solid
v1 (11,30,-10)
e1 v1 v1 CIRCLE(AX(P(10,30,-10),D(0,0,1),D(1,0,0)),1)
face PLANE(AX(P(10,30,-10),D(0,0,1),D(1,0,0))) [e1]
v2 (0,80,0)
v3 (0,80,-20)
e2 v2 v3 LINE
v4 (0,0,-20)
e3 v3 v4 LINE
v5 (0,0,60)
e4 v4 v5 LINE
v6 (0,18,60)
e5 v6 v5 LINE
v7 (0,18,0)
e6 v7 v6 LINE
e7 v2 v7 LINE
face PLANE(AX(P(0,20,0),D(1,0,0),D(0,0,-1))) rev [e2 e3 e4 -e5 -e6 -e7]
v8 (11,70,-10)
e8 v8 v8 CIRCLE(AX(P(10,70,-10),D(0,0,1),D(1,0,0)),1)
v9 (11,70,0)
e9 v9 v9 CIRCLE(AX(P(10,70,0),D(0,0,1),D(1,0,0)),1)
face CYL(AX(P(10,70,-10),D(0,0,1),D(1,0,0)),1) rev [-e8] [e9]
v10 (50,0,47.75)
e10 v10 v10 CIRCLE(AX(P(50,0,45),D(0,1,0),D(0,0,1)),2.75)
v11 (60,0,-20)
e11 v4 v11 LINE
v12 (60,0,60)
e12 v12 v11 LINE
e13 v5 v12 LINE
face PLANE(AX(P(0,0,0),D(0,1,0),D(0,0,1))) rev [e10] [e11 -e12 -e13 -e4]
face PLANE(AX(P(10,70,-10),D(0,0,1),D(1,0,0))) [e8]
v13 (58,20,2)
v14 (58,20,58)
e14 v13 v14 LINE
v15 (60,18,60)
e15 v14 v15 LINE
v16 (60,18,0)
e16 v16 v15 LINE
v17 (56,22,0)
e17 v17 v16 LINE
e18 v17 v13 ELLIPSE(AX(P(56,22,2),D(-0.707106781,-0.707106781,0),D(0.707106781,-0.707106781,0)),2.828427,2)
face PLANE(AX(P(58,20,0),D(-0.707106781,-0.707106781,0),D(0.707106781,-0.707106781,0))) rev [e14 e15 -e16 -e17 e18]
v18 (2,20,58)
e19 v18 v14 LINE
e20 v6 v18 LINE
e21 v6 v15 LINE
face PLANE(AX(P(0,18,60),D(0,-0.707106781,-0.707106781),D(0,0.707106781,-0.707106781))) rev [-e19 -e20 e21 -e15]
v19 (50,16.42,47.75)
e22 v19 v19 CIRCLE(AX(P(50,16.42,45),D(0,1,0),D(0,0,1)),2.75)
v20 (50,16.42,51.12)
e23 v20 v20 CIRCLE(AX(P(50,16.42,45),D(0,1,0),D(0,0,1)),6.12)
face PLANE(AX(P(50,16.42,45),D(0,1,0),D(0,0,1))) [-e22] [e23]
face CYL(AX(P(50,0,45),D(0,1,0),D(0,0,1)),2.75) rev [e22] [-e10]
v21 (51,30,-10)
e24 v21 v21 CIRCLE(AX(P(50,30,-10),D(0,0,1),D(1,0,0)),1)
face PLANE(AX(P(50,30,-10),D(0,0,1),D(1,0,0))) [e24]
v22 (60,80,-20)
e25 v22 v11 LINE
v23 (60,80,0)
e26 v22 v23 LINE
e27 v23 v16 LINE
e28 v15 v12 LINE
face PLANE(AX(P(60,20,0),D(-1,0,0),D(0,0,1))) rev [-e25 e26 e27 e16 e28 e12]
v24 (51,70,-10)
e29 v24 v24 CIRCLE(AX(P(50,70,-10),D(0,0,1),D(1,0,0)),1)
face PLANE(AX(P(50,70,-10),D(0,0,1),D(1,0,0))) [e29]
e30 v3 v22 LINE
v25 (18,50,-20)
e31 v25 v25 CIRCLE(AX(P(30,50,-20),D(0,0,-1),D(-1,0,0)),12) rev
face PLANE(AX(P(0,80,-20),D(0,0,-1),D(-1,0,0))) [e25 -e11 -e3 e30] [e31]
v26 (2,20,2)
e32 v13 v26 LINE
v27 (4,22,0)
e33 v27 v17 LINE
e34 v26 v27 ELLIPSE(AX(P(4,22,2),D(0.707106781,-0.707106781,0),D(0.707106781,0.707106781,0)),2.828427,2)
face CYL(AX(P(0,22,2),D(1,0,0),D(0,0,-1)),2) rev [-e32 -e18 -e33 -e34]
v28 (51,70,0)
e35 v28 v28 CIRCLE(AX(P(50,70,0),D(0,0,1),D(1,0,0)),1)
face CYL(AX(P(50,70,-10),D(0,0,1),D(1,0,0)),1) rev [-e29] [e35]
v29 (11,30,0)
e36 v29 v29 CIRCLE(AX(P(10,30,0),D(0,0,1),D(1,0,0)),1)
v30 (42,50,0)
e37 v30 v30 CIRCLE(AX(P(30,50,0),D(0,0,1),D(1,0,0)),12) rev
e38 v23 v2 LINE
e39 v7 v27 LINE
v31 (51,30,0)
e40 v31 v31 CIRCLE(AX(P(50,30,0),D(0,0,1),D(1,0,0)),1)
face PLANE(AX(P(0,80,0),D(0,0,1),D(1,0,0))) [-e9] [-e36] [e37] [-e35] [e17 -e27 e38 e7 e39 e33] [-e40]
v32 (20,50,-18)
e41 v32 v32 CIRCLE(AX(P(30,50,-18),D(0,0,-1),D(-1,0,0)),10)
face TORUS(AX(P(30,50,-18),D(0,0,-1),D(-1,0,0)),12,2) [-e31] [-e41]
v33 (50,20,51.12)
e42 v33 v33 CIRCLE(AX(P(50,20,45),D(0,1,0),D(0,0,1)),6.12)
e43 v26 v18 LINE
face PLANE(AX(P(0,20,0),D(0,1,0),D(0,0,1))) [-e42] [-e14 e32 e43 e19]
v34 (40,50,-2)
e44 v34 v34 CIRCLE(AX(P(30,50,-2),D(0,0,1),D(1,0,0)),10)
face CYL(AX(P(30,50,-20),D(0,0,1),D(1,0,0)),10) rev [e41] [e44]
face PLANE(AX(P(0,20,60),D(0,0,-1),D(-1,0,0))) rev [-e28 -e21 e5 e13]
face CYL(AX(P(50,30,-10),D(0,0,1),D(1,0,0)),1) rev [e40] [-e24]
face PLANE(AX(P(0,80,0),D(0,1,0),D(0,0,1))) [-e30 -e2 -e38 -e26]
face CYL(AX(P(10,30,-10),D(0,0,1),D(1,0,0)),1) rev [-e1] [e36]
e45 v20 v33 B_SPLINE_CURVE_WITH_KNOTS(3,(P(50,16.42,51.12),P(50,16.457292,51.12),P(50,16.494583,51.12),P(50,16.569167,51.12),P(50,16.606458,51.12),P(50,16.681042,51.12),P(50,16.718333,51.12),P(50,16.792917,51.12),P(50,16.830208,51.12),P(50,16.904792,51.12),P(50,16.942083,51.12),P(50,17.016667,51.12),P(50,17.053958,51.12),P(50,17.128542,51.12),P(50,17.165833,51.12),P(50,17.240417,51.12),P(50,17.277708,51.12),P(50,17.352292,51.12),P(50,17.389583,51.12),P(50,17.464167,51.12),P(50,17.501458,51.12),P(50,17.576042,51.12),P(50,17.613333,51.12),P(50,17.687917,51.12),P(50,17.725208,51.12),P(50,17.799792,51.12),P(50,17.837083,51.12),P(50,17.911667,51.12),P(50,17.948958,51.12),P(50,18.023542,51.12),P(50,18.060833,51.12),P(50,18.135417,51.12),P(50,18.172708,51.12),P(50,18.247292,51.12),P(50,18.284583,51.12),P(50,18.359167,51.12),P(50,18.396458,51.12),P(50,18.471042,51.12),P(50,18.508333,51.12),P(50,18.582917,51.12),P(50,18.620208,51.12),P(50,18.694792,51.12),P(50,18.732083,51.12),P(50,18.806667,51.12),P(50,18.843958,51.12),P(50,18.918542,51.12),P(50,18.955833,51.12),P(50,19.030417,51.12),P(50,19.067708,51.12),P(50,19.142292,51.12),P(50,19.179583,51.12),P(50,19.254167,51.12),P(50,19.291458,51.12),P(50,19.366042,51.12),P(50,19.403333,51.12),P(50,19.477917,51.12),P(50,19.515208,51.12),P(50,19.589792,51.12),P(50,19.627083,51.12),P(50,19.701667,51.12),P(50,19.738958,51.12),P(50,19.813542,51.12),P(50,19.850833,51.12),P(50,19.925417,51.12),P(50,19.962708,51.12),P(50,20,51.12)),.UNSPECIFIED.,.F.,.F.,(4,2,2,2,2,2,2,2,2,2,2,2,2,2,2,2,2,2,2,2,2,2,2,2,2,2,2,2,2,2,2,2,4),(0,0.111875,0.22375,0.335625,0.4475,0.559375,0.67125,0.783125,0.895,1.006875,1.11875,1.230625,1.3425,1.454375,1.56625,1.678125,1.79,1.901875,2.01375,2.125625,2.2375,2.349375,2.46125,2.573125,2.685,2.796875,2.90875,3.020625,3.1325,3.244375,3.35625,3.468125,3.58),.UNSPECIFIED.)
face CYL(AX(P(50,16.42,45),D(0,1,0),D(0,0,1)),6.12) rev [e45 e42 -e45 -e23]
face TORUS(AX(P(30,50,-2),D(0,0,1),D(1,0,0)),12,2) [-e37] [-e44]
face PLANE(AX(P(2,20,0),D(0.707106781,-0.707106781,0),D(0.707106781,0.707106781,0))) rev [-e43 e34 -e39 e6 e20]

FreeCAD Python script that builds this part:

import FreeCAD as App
import Part
import Sketcher
from FreeCAD import Vector
Q = App.Units.Quantity


def edges_at(feature, points):
    """Names of the edges that pass closest to the given points."""
    edges = feature.Shape.Edges
    near = lambda p: min(range(len(edges)), key=lambda i: edges[i].distToShape(Part.Vertex(*p))[0])
    return sorted({f"Edge{near(p) + 1}" for p in points})

doc = App.newDocument("Part")
body = doc.addObject("PartDesign::Body", "Body")

# Sketch on XZ plane
sketch1 = body.newObject("Sketcher::SketchObject", "Sketch")
sketch1.AttachmentSupport = (doc.getObject("XZ_Plane"), [""])
sketch1.MapMode = "FlatFace"
sketch1.addGeometry(Part.LineSegment(Vector(0, 0, 0), Vector(0, 60, 0)), False)
sketch1.addGeometry(Part.LineSegment(Vector(0, 60, 0), Vector(60, 60, 0)), False)
sketch1.addGeometry(Part.LineSegment(Vector(60, 60, 0), Vector(60, 0, 0)), False)
sketch1.addGeometry(Part.LineSegment(Vector(60, 0, 0), Vector(0, 0, 0)), False)
sketch1.addConstraint(Sketcher.Constraint("Coincident", 0, 2, 1, 1))
sketch1.addConstraint(Sketcher.Constraint("Coincident", 1, 2, 2, 1))
sketch1.addConstraint(Sketcher.Constraint("Coincident", 2, 2, 3, 1))
sketch1.addConstraint(Sketcher.Constraint("Coincident", 3, 2, 0, 1))
sketch1.addConstraint(Sketcher.Constraint("Vertical", 0))
sketch1.addConstraint(Sketcher.Constraint("Horizontal", 1))
sketch1.addConstraint(Sketcher.Constraint("Vertical", 2))
sketch1.addConstraint(Sketcher.Constraint("Horizontal", 3))
sketch1.addConstraint(Sketcher.Constraint("Coincident", 3, 2, -1, 1))
sketch1.addConstraint(Sketcher.Constraint("Equal", 3, 0))
sketch1.addConstraint(Sketcher.Constraint("DistanceX", 1, 1, 1, 2, Q("60 mm")))
pad1 = body.newObject("PartDesign::Pad", "Pad")
pad1.Profile = sketch1
pad1.Length = 20
pad1.Reversed = True

# Sketch on XZ plane
sketch2 = body.newObject("Sketcher::SketchObject", "Sketch001")
sketch2.AttachmentSupport = (doc.getObject("XZ_Plane"), [""])
sketch2.MapMode = "FlatFace"
sketch2.addGeometry(Part.LineSegment(Vector(0, -20, 0), Vector(0, 0, 0)), False)
sketch2.addGeometry(Part.LineSegment(Vector(0, 0, 0), Vector(60, 0, 0)), False)
sketch2.addGeometry(Part.LineSegment(Vector(60, 0, 0), Vector(60, -20, 0)), False)
sketch2.addGeometry(Part.LineSegment(Vector(60, -20, 0), Vector(0, -20, 0)), False)
sketch2.addConstraint(Sketcher.Constraint("Coincident", 0, 2, 1, 1))
sketch2.addConstraint(Sketcher.Constraint("Coincident", 1, 2, 2, 1))
sketch2.addConstraint(Sketcher.Constraint("Coincident", 2, 2, 3, 1))
sketch2.addConstraint(Sketcher.Constraint("Coincident", 3, 2, 0, 1))
sketch2.addConstraint(Sketcher.Constraint("Vertical", 0))
sketch2.addConstraint(Sketcher.Constraint("Horizontal", 1))
sketch2.addConstraint(Sketcher.Constraint("Vertical", 2))
sketch2.addConstraint(Sketcher.Constraint("Horizontal", 3))
sketch2.addConstraint(Sketcher.Constraint("Coincident", 0, 2, -1, 1))
sketch2.addConstraint(Sketcher.Constraint("DistanceX", 1, 1, 1, 2, Q("60 mm")))
sketch2.addConstraint(Sketcher.Constraint("DistanceY", 0, 1, 0, 2, Q("20 mm")))
pad2 = body.newObject("PartDesign::Pad", "Pad001")
pad2.Profile = sketch2
pad2.Length = 80
pad2.Reversed = True

# Sketch on XY plane
sketch3 = body.newObject("Sketcher::SketchObject", "Sketch002")
sketch3.AttachmentSupport = (doc.getObject("XY_Plane"), [""])
sketch3.MapMode = "FlatFace"
sketch3.addGeometry(Part.Circle(Vector(30, 50, 0), Vector(0, 0, 1), 10), False)
sketch3.addConstraint(Sketcher.Constraint("Diameter", 0, Q("20 mm")))
sketch3.addConstraint(Sketcher.Constraint("DistanceX", -1, 1, 0, 3, Q("30 mm")))
sketch3.addConstraint(Sketcher.Constraint("DistanceY", -1, 1, 0, 3, Q("50 mm")))
pocket1 = body.newObject("PartDesign::Pocket", "Pocket")
pocket1.Profile = sketch3
pocket1.Type = "ThroughAll"
doc.recompute()

fillet = body.newObject("PartDesign::Fillet", "Fillet")
fillet.Base = (pocket1, edges_at(pocket1, [(20, 50, -20), (20, 50, 0)]))
fillet.Radius = 2

# Sketch on XY plane
sketch4 = body.newObject("Sketcher::SketchObject", "Sketch003")
sketch4.AttachmentSupport = (doc.getObject("XY_Plane"), [""])
sketch4.MapMode = "FlatFace"
sketch4.addGeometry(Part.Circle(Vector(10, 70, 0), Vector(0, 0, 1), 1), False)
sketch4.addGeometry(Part.Circle(Vector(50, 70, 0), Vector(0, 0, 1), 1), False)
sketch4.addGeometry(Part.Circle(Vector(50, 30, 0), Vector(0, 0, 1), 1), False)
sketch4.addGeometry(Part.Circle(Vector(10, 30, 0), Vector(0, 0, 1), 1), False)
sketch4.addConstraint(Sketcher.Constraint("Equal", 0, 1))
sketch4.addConstraint(Sketcher.Constraint("Equal", 1, 2))
sketch4.addConstraint(Sketcher.Constraint("Equal", 2, 3))
sketch4.addConstraint(Sketcher.Constraint("Horizontal", 0, 3, 1, 3))
sketch4.addConstraint(Sketcher.Constraint("Horizontal", 2, 3, 3, 3))
sketch4.addConstraint(Sketcher.Constraint("Vertical", 1, 3, 2, 3))
sketch4.addConstraint(Sketcher.Constraint("Vertical", 0, 3, 3, 3))
sketch4.addConstraint(Sketcher.Constraint("Diameter", 0, Q("2 mm")))
sketch4.addConstraint(Sketcher.Constraint("DistanceX", -1, 1, 0, 3, Q("10 mm")))
sketch4.addConstraint(Sketcher.Constraint("DistanceY", -1, 1, 0, 3, Q("70 mm")))
sketch4.addConstraint(Sketcher.Constraint("DistanceX", -1, 1, 1, 3, Q("50 mm")))
sketch4.addConstraint(Sketcher.Constraint("DistanceY", -1, 1, 2, 3, Q("30 mm")))
pocket2 = body.newObject("PartDesign::Pocket", "Pocket001")
pocket2.Profile = sketch4
pocket2.Length = 10

# Sketch on XZ plane
sketch5 = body.newObject("Sketcher::SketchObject", "Sketch004")
sketch5.AttachmentSupport = (doc.getObject("XZ_Plane"), [""])
sketch5.MapMode = "FlatFace"
sketch5.AttachmentOffset = App.Placement(Vector(0, 0, -20), App.Rotation())
sketch5.addGeometry(Part.Circle(Vector(50, 45, 0), Vector(0, 0, 1), 6), False)
sketch5.addConstraint(Sketcher.Constraint("Diameter", 0, Q("12.24 mm")))
sketch5.addConstraint(Sketcher.Constraint("DistanceX", -1, 1, 0, 3, Q("50 mm")))
sketch5.addConstraint(Sketcher.Constraint("DistanceY", -1, 1, 0, 3, Q("45 mm")))
pocket3 = body.newObject("PartDesign::Pocket", "Pocket002")
pocket3.Profile = sketch5
pocket3.Length = 3.58
pocket3.Reversed = True

# Sketch on XZ plane
sketch6 = body.newObject("Sketcher::SketchObject", "Sketch005")
sketch6.AttachmentSupport = (doc.getObject("XZ_Plane"), [""])
sketch6.MapMode = "FlatFace"
sketch6.AttachmentOffset = App.Placement(Vector(0, 0, -16.42), App.Rotation())
sketch6.addGeometry(Part.Circle(Vector(50, 45, 0), Vector(0, 0, 1), 2.8), False)
sketch6.addConstraint(Sketcher.Constraint("Diameter", 0, Q("5.5 mm")))
sketch6.addConstraint(Sketcher.Constraint("DistanceX", -1, 1, 0, 3, Q("50 mm")))
sketch6.addConstraint(Sketcher.Constraint("DistanceY", -1, 1, 0, 3, Q("45 mm")))
pocket4 = body.newObject("PartDesign::Pocket", "Pocket003")
pocket4.Profile = sketch6
pocket4.Type = "ThroughAll"
pocket4.Reversed = True

# Sketch on XY plane
sketch7 = body.newObject("Sketcher::SketchObject", "Sketch006")
sketch7.AttachmentSupport = (doc.getObject("XY_Plane"), [""])
sketch7.MapMode = "FlatFace"
sketch7.AttachmentOffset = App.Placement(Vector(0, 0, 60), App.Rotation())
sketch7.addGeometry(Part.LineSegment(Vector(2, 20, 0), Vector(0, 20, 0)), False)
sketch7.addGeometry(Part.LineSegment(Vector(0, 20, 0), Vector(0, 18, 0)), False)
sketch7.addGeometry(Part.LineSegment(Vector(0, 18, 0), Vector(2, 20, 0)), False)
sketch7.addGeometry(Part.LineSegment(Vector(60, 20, 0), Vector(58, 20, 0)), False)
sketch7.addGeometry(Part.LineSegment(Vector(58, 20, 0), Vector(60, 18, 0)), False)
sketch7.addGeometry(Part.LineSegment(Vector(60, 18, 0), Vector(60, 20, 0)), False)
sketch7.addConstraint(Sketcher.Constraint("Coincident", 0, 2, 1, 1))
sketch7.addConstraint(Sketcher.Constraint("Coincident", 1, 2, 2, 1))
sketch7.addConstraint(Sketcher.Constraint("Coincident", 2, 2, 0, 1))
sketch7.addConstraint(Sketcher.Constraint("Coincident", 3, 2, 4, 1))
sketch7.addConstraint(Sketcher.Constraint("Coincident", 4, 2, 5, 1))
sketch7.addConstraint(Sketcher.Constraint("Coincident", 5, 2, 3, 1))
sketch7.addConstraint(Sketcher.Constraint("Horizontal", 0))
sketch7.addConstraint(Sketcher.Constraint("Vertical", 1))
sketch7.addConstraint(Sketcher.Constraint("Horizontal", 3))
sketch7.addConstraint(Sketcher.Constraint("Vertical", 5))
sketch7.addConstraint(Sketcher.Constraint("PointOnObject", 0, 2, -2))
sketch7.addConstraint(Sketcher.Constraint("Perpendicular", 2, 4))
sketch7.addConstraint(Sketcher.Constraint("Horizontal", 2, 2, 3, 2))
sketch7.addConstraint(Sketcher.Constraint("Horizontal", 1, 2, 4, 2))
sketch7.addConstraint(Sketcher.Constraint("Equal", 0, 3))
sketch7.addConstraint(Sketcher.Constraint("DistanceX", 0, 2, 0, 1, Q("2 mm")))
sketch7.addConstraint(Sketcher.Constraint("DistanceY", -1, 1, 0, 2, Q("20 mm")))
sketch7.addConstraint(Sketcher.Constraint("DistanceX", -1, 1, 3, 2, Q("58 mm")))
pocket5 = body.newObject("PartDesign::Pocket", "Pocket004")
pocket5.Profile = sketch7
pocket5.Length = 60
doc.recompute()

fillet2 = body.newObject("PartDesign::Fillet", "Fillet001")
fillet2.Base = (pocket5, edges_at(pocket5, [(30, 20, 0)]))
fillet2.Radius = 2

# Sketch on YZ plane
sketch8 = body.newObject("Sketcher::SketchObject", "Sketch007")
sketch8.AttachmentSupport = (doc.getObject("YZ_Plane"), [""])
sketch8.MapMode = "FlatFace"
sketch8.AttachmentOffset = App.Placement(Vector(0, 0, 60), App.Rotation())
sketch8.addGeometry(Part.LineSegment(Vector(20, 58, 0), Vector(20, 60, 0)), False)
sketch8.addGeometry(Part.LineSegment(Vector(20, 60, 0), Vector(18, 60, 0)), False)
sketch8.addGeometry(Part.LineSegment(Vector(18, 60, 0), Vector(20, 58, 0)), False)
sketch8.addConstraint(Sketcher.Constraint("Coincident", 0, 2, 1, 1))
sketch8.addConstraint(Sketcher.Constraint("Coincident", 1, 2, 2, 1))
sketch8.addConstraint(Sketcher.Constraint("Coincident", 2, 2, 0, 1))
sketch8.addConstraint(Sketcher.Constraint("Vertical", 0))
sketch8.addConstraint(Sketcher.Constraint("Horizontal", 1))
sketch8.addConstraint(Sketcher.Constraint("Equal", 1, 0))
sketch8.addConstraint(Sketcher.Constraint("DistanceX", 1, 2, 1, 1, Q("2 mm")))
sketch8.addConstraint(Sketcher.Constraint("DistanceX", -1, 1, 0, 2, Q("20 mm")))
sketch8.addConstraint(Sketcher.Constraint("DistanceY", -1, 1, 0, 2, Q("60 mm")))
pocket6 = body.newObject("PartDesign::Pocket", "Pocket005")
pocket6.Profile = sketch8
pocket6.Length = 60

doc.recompute()
